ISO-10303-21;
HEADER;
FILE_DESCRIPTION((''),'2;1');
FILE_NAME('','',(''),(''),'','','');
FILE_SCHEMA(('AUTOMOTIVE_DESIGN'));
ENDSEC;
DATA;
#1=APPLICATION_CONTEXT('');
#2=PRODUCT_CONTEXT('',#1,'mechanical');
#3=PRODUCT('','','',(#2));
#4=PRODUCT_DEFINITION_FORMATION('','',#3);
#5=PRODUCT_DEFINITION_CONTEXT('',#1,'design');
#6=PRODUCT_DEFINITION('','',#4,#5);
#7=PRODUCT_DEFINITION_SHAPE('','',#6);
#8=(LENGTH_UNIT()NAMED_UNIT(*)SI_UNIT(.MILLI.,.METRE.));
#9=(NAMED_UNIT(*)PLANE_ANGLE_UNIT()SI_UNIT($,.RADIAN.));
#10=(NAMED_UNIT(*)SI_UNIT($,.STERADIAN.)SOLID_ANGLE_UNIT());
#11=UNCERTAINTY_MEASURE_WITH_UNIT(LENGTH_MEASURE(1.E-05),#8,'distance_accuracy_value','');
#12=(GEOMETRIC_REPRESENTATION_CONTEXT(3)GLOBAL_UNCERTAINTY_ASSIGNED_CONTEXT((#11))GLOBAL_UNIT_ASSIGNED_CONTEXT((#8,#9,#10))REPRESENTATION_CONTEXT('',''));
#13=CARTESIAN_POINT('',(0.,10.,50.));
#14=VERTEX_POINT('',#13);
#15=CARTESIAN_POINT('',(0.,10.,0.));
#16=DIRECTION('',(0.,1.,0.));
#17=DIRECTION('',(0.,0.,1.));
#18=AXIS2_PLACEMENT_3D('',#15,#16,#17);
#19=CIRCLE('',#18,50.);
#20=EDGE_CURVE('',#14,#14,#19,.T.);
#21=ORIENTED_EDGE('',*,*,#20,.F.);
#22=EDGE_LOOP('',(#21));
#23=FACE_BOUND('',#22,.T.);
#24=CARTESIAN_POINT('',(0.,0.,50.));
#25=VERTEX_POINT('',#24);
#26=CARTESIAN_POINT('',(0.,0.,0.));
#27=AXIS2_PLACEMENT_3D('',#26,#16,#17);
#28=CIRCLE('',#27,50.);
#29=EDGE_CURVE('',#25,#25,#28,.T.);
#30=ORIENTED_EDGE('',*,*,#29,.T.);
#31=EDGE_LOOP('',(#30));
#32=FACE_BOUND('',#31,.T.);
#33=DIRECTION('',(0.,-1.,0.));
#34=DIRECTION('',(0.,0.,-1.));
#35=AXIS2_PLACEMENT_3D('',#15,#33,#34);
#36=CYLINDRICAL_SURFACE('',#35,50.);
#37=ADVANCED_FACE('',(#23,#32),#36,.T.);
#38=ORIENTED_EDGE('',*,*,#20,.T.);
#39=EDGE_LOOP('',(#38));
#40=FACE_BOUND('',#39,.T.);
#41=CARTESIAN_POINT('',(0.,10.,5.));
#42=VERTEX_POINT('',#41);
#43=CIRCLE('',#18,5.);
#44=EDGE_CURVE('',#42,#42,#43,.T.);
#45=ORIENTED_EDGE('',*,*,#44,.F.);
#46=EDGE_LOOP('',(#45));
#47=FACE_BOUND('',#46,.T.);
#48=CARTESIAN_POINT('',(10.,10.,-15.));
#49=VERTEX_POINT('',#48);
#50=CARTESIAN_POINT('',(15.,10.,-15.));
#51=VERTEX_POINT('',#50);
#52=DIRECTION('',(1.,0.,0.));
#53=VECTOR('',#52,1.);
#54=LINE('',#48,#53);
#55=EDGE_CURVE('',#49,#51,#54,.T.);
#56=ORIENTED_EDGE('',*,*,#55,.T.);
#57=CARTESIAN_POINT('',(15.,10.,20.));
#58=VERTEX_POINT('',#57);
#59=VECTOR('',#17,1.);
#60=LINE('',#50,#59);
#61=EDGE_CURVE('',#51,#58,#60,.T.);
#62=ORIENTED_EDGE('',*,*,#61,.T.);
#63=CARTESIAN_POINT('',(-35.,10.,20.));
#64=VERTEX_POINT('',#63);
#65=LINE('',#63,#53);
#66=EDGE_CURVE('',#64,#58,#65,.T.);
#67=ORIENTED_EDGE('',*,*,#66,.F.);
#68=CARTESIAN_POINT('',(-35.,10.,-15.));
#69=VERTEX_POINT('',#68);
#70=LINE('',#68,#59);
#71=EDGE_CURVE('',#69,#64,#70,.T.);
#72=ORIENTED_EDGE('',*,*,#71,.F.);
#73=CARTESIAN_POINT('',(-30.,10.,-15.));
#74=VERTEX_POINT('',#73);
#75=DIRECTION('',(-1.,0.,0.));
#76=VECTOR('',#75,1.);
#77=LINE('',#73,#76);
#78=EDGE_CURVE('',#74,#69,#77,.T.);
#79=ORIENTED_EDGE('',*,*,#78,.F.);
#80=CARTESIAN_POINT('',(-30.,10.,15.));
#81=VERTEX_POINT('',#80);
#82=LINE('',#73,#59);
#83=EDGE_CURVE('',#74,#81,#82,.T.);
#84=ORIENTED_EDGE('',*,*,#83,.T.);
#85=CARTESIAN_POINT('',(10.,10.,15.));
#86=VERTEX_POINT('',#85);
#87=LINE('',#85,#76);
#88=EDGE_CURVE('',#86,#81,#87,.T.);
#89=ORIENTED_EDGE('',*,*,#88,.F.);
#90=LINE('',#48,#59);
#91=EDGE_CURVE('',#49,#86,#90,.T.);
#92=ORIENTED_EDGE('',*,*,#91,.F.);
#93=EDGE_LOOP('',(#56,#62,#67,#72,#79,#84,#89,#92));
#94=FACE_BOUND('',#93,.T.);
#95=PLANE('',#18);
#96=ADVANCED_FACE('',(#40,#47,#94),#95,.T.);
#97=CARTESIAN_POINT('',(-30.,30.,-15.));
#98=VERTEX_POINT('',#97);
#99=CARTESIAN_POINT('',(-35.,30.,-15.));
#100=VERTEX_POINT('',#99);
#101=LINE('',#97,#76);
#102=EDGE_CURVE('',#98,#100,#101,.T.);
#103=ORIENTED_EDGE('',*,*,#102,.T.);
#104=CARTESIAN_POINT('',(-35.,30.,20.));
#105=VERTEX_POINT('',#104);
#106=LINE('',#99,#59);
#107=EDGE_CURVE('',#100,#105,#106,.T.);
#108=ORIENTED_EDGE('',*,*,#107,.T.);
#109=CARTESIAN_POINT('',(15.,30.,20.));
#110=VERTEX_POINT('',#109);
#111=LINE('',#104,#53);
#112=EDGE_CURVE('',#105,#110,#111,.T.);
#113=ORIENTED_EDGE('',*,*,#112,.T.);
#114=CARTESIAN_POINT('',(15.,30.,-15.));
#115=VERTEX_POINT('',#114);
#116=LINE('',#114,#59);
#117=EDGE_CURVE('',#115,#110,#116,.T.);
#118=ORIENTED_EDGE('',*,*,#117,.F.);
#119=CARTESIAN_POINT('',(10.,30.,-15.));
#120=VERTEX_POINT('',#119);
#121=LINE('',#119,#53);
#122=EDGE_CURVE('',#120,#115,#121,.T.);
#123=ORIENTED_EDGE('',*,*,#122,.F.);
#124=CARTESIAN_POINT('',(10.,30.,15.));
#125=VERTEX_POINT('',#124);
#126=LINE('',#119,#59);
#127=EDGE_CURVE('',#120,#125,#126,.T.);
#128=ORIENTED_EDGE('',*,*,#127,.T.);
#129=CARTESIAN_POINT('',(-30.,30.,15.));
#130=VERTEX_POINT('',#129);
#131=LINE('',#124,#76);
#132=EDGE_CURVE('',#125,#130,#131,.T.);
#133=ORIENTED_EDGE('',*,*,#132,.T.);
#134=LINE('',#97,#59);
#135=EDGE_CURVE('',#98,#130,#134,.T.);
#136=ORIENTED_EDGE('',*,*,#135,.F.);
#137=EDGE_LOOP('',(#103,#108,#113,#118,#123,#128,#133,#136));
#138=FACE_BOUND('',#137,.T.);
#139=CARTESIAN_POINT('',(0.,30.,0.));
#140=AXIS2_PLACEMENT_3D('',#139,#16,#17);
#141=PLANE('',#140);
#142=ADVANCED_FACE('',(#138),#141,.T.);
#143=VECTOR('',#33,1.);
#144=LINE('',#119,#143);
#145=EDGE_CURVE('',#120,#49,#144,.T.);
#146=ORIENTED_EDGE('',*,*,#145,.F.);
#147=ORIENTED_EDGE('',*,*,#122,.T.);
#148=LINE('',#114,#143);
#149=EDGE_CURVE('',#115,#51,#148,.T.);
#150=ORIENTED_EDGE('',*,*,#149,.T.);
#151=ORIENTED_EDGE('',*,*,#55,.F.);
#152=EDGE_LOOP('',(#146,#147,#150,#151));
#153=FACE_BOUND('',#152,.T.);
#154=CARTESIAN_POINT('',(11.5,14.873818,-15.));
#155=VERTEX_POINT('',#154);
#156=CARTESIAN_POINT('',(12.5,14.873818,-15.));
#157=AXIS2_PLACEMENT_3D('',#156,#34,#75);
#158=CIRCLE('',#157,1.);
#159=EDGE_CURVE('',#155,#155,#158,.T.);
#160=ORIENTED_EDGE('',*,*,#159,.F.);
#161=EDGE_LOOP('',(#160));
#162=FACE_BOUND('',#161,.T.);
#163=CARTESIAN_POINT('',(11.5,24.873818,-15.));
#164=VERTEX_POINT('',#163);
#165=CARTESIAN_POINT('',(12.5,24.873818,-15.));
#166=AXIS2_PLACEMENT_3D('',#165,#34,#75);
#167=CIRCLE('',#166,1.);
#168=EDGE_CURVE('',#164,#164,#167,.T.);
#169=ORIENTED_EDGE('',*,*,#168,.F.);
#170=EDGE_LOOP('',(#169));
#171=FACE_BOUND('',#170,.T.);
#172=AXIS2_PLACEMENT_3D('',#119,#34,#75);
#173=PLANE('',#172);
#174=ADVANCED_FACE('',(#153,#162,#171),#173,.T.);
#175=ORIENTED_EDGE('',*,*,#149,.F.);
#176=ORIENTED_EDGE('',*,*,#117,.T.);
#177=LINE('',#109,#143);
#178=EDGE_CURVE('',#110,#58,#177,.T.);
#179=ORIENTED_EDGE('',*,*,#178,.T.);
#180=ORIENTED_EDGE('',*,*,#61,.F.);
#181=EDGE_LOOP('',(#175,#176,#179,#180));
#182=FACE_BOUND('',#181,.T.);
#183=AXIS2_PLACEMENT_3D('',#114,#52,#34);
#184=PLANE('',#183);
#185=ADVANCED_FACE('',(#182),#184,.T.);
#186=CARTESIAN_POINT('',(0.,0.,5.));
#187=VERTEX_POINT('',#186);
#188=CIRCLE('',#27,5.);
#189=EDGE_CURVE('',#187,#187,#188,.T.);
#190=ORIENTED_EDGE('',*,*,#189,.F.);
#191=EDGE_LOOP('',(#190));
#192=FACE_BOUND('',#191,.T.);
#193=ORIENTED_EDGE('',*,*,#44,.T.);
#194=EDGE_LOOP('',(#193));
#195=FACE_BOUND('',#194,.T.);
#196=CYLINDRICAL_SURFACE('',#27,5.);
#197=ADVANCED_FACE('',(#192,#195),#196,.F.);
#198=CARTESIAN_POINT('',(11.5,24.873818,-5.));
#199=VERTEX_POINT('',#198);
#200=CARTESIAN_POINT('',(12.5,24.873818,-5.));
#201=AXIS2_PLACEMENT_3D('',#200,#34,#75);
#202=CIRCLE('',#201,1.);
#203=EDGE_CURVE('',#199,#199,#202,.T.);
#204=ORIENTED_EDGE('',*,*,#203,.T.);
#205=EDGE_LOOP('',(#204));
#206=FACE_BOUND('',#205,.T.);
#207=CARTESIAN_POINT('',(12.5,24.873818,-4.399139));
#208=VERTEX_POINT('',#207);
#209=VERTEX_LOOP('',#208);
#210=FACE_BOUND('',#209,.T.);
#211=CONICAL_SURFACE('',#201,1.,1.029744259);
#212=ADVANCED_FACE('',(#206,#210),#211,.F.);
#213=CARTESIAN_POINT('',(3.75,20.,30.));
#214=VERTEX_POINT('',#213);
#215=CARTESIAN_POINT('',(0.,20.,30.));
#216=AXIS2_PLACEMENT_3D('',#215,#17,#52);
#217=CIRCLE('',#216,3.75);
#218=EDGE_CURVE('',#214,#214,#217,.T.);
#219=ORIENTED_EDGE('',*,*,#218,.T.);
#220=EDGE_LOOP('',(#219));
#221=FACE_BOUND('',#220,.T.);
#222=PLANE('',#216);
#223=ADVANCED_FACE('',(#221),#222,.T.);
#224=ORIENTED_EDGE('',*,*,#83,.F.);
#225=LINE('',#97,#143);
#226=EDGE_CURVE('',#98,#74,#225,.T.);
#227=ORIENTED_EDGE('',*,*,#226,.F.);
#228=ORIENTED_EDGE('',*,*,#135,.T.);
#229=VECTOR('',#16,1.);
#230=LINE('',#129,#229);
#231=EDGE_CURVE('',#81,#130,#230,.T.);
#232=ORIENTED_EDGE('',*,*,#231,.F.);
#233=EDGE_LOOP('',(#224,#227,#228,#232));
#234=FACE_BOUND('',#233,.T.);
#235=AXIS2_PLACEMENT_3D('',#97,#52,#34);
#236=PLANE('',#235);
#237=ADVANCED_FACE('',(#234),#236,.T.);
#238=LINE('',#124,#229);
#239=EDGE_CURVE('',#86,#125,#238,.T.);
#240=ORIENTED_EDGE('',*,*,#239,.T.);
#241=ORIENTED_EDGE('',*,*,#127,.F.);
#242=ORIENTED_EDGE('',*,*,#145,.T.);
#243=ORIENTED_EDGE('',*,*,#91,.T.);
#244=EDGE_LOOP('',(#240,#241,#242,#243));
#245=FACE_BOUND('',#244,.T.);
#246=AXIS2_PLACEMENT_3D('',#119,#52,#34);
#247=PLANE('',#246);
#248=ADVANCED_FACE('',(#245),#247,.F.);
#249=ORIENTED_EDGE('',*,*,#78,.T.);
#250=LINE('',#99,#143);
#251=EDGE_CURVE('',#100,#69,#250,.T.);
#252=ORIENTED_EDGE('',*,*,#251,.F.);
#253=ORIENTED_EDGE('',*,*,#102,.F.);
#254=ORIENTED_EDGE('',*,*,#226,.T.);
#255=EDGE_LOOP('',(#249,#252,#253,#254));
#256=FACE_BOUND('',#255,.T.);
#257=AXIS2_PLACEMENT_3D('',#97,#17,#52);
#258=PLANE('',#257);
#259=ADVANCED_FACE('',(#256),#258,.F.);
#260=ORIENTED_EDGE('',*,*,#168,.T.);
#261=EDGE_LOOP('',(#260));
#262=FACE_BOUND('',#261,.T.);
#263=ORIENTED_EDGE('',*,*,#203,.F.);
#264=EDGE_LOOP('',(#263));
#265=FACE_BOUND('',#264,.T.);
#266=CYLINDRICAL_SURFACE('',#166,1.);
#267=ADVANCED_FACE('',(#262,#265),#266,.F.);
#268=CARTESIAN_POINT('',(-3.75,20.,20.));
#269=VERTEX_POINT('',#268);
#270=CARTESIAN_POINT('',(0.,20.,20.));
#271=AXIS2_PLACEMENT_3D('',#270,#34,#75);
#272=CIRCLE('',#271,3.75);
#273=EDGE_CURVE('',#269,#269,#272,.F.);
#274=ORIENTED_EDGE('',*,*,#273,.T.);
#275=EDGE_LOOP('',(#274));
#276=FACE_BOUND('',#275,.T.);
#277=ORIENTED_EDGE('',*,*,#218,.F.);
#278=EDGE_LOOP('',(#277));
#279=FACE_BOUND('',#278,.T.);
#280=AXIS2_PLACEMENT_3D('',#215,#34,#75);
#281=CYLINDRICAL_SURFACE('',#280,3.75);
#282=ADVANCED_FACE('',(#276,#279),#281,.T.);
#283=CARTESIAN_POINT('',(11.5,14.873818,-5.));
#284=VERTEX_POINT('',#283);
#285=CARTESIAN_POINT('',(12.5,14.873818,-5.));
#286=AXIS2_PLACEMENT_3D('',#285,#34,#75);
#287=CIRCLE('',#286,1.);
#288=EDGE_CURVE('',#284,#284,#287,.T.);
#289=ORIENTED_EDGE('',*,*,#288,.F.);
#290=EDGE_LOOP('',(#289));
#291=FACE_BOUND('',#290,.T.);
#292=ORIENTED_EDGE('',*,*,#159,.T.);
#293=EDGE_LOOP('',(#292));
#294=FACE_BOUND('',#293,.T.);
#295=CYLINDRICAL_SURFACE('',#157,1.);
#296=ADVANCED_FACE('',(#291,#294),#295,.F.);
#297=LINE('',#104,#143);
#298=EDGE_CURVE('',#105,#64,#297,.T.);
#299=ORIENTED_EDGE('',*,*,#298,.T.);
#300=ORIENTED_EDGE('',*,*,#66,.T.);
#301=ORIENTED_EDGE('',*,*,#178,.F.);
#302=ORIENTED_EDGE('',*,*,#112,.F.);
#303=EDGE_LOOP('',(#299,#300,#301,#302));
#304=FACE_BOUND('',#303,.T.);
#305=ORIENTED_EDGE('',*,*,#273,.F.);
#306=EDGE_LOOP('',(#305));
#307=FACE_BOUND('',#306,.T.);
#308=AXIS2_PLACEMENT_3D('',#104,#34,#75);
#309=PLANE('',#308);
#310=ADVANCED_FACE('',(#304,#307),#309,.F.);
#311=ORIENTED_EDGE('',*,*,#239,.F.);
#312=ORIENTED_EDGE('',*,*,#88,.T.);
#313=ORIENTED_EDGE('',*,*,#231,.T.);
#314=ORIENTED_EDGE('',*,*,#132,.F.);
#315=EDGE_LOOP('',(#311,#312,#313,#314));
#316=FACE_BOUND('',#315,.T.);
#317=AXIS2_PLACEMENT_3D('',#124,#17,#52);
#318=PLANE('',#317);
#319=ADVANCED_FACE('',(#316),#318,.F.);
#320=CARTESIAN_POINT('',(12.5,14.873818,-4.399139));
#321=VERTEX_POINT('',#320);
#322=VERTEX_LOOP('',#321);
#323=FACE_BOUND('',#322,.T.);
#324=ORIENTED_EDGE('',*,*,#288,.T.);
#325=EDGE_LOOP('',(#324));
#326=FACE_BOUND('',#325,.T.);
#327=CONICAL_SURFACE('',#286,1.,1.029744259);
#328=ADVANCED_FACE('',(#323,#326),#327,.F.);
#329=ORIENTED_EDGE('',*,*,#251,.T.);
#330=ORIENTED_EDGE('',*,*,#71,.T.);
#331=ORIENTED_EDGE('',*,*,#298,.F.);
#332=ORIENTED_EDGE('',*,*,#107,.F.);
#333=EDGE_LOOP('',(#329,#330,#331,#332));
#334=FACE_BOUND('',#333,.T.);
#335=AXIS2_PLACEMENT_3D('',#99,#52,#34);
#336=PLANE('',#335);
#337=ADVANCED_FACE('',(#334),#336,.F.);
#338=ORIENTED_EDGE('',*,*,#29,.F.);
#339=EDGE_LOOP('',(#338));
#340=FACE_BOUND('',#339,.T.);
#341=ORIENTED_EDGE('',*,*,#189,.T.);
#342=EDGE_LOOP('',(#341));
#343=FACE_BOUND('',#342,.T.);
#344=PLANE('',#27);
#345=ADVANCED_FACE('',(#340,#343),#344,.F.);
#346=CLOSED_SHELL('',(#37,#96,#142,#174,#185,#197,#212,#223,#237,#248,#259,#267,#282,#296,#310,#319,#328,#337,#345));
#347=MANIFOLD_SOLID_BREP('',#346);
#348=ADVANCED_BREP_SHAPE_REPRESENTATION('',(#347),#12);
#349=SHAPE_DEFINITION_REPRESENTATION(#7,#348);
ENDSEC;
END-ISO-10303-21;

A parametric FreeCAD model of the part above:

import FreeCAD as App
import Part
import Sketcher

V = App.Vector
Q = App.Units.Quantity


def add_polygon(sketch, points):
    """Adds a closed chain of lines whose ends are joined by coincident constraints."""
    first, n = sketch.GeometryCount, len(points)
    for a, b in zip(points, points[1:] + points[:1]):
        sketch.addGeometry(Part.LineSegment(App.Vector(*a, 0), App.Vector(*b, 0)), False)
    for i in range(n):
        sketch.addConstraint(Sketcher.Constraint("Coincident", first + i, 2, first + (i + 1) % n, 1))

doc = App.newDocument("Part")
body = doc.addObject("PartDesign::Body", "Body")

# Sketch on XZ plane
sketch1 = doc.addObject("Sketcher::SketchObject", "Sketch")
body.addObject(sketch1)
sketch1.AttachmentSupport = (doc.XZ_Plane, [""])
sketch1.MapMode = "FlatFace"
sketch1.addGeometry(Part.Circle(V(0, 0, 0), V(0, 0, 1), 50), False)
sketch1.addConstraint(Sketcher.Constraint("Coincident", 0, 3, -1, 1))
sketch1.addConstraint(Sketcher.Constraint("Diameter", 0, Q("100 mm")))
pad1 = doc.addObject("PartDesign::Pad", "Pad")
body.addObject(pad1)
pad1.Profile = sketch1
pad1.Length = 10
pad1.Reversed = True

# Sketch on XZ plane
sketch2 = doc.addObject("Sketcher::SketchObject", "Sketch001")
body.addObject(sketch2)
sketch2.AttachmentSupport = (doc.XZ_Plane, [""])
sketch2.MapMode = "FlatFace"
sketch2.AttachmentOffset = App.Placement(V(0, 0, -10), App.Rotation())
sketch2.addGeometry(Part.Circle(V(0, 0, 0), V(0, 0, 1), 5), False)
sketch2.addConstraint(Sketcher.Constraint("Coincident", 0, 3, -1, 1))
sketch2.addConstraint(Sketcher.Constraint("Diameter", 0, Q("10 mm")))
pocket1 = doc.addObject("PartDesign::Pocket", "Pocket")
body.addObject(pocket1)
pocket1.Profile = sketch2
pocket1.Length = 10
pocket1.Reversed = True

# Sketch on XZ plane
sketch3 = doc.addObject("Sketcher::SketchObject", "Sketch002")
body.addObject(sketch3)
sketch3.AttachmentSupport = (doc.XZ_Plane, [""])
sketch3.MapMode = "FlatFace"
sketch3.AttachmentOffset = App.Placement(V(0, 0, -10), App.Rotation())
add_polygon(sketch3, [(10, -15), (10, 20), (15, 20), (15, -15)])  # lines 0-3
add_polygon(sketch3, [(-35, -15), (-35, 20), (-30, 20), (-30, -15)])  # lines 4-7
sketch3.addConstraint(Sketcher.Constraint("Vertical", 0))
sketch3.addConstraint(Sketcher.Constraint("Horizontal", 1))
sketch3.addConstraint(Sketcher.Constraint("Vertical", 2))
sketch3.addConstraint(Sketcher.Constraint("Horizontal", 3))
sketch3.addConstraint(Sketcher.Constraint("Vertical", 4))
sketch3.addConstraint(Sketcher.Constraint("Horizontal", 5))
sketch3.addConstraint(Sketcher.Constraint("Vertical", 6))
sketch3.addConstraint(Sketcher.Constraint("Horizontal", 7))
sketch3.addConstraint(Sketcher.Constraint("Horizontal", 1, 2, 4, 2))
sketch3.addConstraint(Sketcher.Constraint("Horizontal", 3, 2, 6, 2))
sketch3.addConstraint(Sketcher.Constraint("Equal", 3, 5))
sketch3.addConstraint(Sketcher.Constraint("DistanceX", 1, 1, 1, 2, Q("5 mm")))
sketch3.addConstraint(Sketcher.Constraint("DistanceY", 0, 1, 0, 2, Q("35 mm")))
sketch3.addConstraint(Sketcher.Constraint("DistanceX", -1, 1, 0, 2, Q("10 mm")))
sketch3.addConstraint(Sketcher.Constraint("DistanceY", -1, 1, 0, 2, Q("20 mm")))
sketch3.addConstraint(Sketcher.Constraint("DistanceX", 4, 2, -1, 1, Q("35 mm")))
pad2 = doc.addObject("PartDesign::Pad", "Pad001")
body.addObject(pad2)
pad2.Profile = sketch3
pad2.Length = 20
pad2.Reversed = True

# Sketch on YZ plane
sketch4 = doc.addObject("Sketcher::SketchObject", "Sketch003")
body.addObject(sketch4)
sketch4.AttachmentSupport = (doc.YZ_Plane, [""])
sketch4.MapMode = "FlatFace"
sketch4.AttachmentOffset = App.Placement(V(0, 0, -30), App.Rotation())
add_polygon(sketch4, [(30, 20), (10, 20), (10, 15), (30, 15)])  # lines 0-3
sketch4.addConstraint(Sketcher.Constraint("Horizontal", 0))
sketch4.addConstraint(Sketcher.Constraint("Vertical", 1))
sketch4.addConstraint(Sketcher.Constraint("Horizontal", 2))
sketch4.addConstraint(Sketcher.Constraint("Vertical", 3))
sketch4.addConstraint(Sketcher.Constraint("DistanceX", 0, 2, 0, 1, Q("20 mm")))
sketch4.addConstraint(Sketcher.Constraint("DistanceY", 1, 2, 1, 1, Q("5 mm")))
sketch4.addConstraint(Sketcher.Constraint("DistanceX", -1, 1, 0, 2, Q("10 mm")))
sketch4.addConstraint(Sketcher.Constraint("DistanceY", -1, 1, 0, 2, Q("20 mm")))
pad3 = doc.addObject("PartDesign::Pad", "Pad002")
body.addObject(pad3)
pad3.Profile = sketch4
pad3.Length = 40

# Sketch on XY plane
sketch5 = doc.addObject("Sketcher::SketchObject", "Sketch004")
body.addObject(sketch5)
sketch5.AttachmentSupport = (doc.XY_Plane, [""])
sketch5.MapMode = "FlatFace"
sketch5.AttachmentOffset = App.Placement(V(0, 0, -15), App.Rotation())
sketch5.addGeometry(Part.Circle(V(12.5, 24.9, 0), V(0, 0, 1), 1), False)
sketch5.addGeometry(Part.Circle(V(12.5, 14.9, 0), V(0, 0, 1), 1), False)
sketch5.addConstraint(Sketcher.Constraint("Equal", 0, 1))
sketch5.addConstraint(Sketcher.Constraint("Vertical", 0, 3, 1, 3))
sketch5.addConstraint(Sketcher.Constraint("Diameter", 0, Q("2 mm")))
sketch5.addConstraint(Sketcher.Constraint("DistanceY", 1, 3, 0, 3, Q("10 mm")))
sketch5.addConstraint(Sketcher.Constraint("DistanceX", -1, 1, 0, 3, Q("12.5 mm")))
sketch5.addConstraint(Sketcher.Constraint("DistanceY", -1, 1, 0, 3, Q("24.873818 mm")))
doc.recompute()
hole = doc.addObject("PartDesign::Hole", "Hole")
body.addObject(hole)
hole.Profile = sketch5
hole.ThreadType = "None"
hole.Diameter = 2
hole.DepthType = "Dimension"
hole.Depth = 10
hole.DrillPoint = "Angled"
hole.DrillPointAngle = 118
hole.Reversed = True

# Sketch on XY plane
sketch6 = doc.addObject("Sketcher::SketchObject", "Sketch005")
body.addObject(sketch6)
sketch6.AttachmentSupport = (doc.XY_Plane, [""])
sketch6.MapMode = "FlatFace"
sketch6.AttachmentOffset = App.Placement(V(0, 0, 20), App.Rotation())
sketch6.addGeometry(Part.Circle(V(0, 20, 0), V(0, 0, 1), 3.8), False)
sketch6.addConstraint(Sketcher.Constraint("PointOnObject", 0, 3, -2))
sketch6.addConstraint(Sketcher.Constraint("Diameter", 0, Q("7.5 mm")))
sketch6.addConstraint(Sketcher.Constraint("DistanceY", -1, 1, 0, 3, Q("20 mm")))
pad4 = doc.addObject("PartDesign::Pad", "Pad003")
body.addObject(pad4)
pad4.Profile = sketch6
pad4.Length = 10

doc.recompute()
